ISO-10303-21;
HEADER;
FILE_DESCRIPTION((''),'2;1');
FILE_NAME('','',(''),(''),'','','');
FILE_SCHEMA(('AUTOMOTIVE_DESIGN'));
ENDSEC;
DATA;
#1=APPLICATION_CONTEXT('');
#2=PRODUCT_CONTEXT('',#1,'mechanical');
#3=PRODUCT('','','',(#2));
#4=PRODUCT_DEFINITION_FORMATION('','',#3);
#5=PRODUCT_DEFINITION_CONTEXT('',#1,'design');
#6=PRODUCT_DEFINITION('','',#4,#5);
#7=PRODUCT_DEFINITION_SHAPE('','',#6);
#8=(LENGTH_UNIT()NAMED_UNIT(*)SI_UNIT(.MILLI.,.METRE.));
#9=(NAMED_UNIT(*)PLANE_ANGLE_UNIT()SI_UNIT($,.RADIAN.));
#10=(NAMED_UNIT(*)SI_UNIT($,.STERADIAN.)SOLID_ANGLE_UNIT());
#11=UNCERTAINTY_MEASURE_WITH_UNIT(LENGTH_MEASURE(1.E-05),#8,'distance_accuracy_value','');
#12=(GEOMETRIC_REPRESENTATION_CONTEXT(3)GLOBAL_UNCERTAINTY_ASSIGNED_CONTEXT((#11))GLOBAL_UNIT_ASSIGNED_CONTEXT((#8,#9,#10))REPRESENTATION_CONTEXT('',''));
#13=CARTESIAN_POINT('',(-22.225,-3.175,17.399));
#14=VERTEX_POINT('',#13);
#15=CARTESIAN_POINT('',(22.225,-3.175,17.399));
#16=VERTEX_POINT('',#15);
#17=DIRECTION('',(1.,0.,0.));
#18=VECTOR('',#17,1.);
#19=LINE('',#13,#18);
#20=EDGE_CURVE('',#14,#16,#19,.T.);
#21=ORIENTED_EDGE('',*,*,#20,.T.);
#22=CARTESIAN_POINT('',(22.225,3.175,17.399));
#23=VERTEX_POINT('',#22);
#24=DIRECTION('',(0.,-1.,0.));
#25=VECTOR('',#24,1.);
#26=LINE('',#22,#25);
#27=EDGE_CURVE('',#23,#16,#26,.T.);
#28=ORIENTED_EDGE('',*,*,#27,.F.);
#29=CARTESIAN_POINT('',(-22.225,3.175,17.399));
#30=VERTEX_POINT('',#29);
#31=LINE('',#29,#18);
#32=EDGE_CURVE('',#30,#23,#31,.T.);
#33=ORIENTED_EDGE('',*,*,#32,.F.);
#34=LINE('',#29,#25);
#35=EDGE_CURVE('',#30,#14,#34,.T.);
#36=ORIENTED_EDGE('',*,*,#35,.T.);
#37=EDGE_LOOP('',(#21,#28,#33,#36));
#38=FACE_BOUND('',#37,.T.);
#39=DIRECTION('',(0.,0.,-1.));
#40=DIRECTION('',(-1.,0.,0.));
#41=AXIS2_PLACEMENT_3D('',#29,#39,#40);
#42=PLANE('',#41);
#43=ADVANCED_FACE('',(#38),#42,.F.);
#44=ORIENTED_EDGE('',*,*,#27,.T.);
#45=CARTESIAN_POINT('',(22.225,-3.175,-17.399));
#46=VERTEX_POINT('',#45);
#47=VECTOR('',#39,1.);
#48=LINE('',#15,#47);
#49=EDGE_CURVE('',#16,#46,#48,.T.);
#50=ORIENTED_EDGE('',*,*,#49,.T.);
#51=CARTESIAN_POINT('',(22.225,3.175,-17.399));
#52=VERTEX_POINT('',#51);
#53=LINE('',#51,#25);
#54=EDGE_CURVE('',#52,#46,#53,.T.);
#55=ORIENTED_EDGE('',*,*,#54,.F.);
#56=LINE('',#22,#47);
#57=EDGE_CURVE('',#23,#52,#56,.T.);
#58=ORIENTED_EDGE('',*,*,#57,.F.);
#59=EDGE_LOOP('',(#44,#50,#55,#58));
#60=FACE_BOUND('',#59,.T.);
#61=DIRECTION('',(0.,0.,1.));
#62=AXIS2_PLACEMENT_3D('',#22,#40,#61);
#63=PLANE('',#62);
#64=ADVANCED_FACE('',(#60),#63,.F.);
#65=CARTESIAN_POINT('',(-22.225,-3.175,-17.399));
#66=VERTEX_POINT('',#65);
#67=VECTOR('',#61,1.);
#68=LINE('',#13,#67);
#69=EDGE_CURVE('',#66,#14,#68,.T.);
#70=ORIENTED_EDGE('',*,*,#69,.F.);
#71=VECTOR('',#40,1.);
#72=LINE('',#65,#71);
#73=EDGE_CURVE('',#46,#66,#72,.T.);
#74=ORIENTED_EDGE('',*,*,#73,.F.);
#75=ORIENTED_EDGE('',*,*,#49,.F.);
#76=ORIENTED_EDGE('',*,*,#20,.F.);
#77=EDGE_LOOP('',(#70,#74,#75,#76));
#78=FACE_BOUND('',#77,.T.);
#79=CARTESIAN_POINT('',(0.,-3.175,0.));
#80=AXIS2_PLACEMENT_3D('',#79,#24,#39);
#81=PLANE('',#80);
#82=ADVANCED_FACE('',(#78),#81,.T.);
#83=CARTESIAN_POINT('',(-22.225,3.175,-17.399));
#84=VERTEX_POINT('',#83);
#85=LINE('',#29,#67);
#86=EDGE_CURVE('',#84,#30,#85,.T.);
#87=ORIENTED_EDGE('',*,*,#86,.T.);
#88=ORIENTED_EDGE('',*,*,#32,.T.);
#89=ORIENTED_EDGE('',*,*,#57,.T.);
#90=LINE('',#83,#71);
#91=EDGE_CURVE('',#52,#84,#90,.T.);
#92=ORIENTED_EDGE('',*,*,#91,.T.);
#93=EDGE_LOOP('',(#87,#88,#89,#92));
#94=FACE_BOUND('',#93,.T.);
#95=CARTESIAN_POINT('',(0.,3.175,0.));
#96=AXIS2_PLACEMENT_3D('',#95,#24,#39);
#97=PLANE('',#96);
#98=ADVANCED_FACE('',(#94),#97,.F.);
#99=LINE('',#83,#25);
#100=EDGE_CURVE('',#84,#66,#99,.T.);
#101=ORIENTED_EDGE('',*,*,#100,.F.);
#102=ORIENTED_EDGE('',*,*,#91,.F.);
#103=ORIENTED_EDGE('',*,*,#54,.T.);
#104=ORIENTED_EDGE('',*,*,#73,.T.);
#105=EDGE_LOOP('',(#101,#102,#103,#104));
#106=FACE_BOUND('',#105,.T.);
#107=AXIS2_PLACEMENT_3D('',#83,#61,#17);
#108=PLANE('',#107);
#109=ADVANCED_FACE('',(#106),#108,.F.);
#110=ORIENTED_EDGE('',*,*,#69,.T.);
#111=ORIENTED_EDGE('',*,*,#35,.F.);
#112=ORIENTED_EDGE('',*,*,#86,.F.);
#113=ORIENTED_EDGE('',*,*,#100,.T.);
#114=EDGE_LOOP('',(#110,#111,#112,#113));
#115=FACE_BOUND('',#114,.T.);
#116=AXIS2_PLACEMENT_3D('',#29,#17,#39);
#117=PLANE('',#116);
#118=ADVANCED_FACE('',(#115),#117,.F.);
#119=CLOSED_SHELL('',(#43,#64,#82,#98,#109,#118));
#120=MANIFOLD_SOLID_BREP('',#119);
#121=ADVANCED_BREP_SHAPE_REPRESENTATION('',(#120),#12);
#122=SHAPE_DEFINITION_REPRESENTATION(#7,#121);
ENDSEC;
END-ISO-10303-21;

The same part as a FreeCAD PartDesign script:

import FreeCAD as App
import Part
import Sketcher

V = App.Vector
Q = App.Units.Quantity

doc = App.newDocument("Part")
params = doc.addObject("Spreadsheet::Sheet", "Params")
for row, (alias, value) in enumerate([
    ("sketch1_width", "1.75 in"),
    ("sketch1_height", "1.37 in"),
    ("pad1_length", "0.25 in"),
], start=1):
    params.set(f"A{row}", alias)
    params.set(f"B{row}", "=" + value)
    params.setAlias(f"B{row}", alias)

body = doc.addObject("PartDesign::Body", "Body")

sketch1 = body.newObject("Sketcher::SketchObject", "Sketch")
sketch1.AttachmentSupport = (doc.getObject("XZ_Plane"), [""])
sketch1.MapMode = "FlatFace"
sketch1.addGeometry([
    Part.LineSegment(V(-22, -17, 0), V(-22, 17, 0)),
    Part.LineSegment(V(-22, 17, 0), V(22, 17, 0)),
    Part.LineSegment(V(22, 17, 0), V(22, -17, 0)),
    Part.LineSegment(V(22, -17, 0), V(-22, -17, 0)),
], False)
sketch1.addConstraint([
    Sketcher.Constraint("Coincident", 0, 2, 1, 1),
    Sketcher.Constraint("Coincident", 1, 2, 2, 1),
    Sketcher.Constraint("Coincident", 2, 2, 3, 1),
    Sketcher.Constraint("Coincident", 3, 2, 0, 1),
    Sketcher.Constraint("Vertical", 0),
    Sketcher.Constraint("Horizontal", 1),
    Sketcher.Constraint("Vertical", 2),
    Sketcher.Constraint("Horizontal", 3),
    Sketcher.Constraint("Symmetric", 0, 2, 2, 2, -1, 1),
    Sketcher.Constraint("DistanceX", 1, 1, 1, 2, Q("1.75 in")),
    Sketcher.Constraint("DistanceY", 0, 1, 0, 2, Q("1.37 in")),
])
sketch1.setExpression("Constraints[9]", "Params.sketch1_width")
sketch1.setExpression("Constraints[10]", "Params.sketch1_height")
pad1 = body.newObject("PartDesign::Pad", "Pad")
pad1.Profile = sketch1
pad1.setExpression("Length", "Params.pad1_length")
pad1.Midplane = True

doc.recompute()
